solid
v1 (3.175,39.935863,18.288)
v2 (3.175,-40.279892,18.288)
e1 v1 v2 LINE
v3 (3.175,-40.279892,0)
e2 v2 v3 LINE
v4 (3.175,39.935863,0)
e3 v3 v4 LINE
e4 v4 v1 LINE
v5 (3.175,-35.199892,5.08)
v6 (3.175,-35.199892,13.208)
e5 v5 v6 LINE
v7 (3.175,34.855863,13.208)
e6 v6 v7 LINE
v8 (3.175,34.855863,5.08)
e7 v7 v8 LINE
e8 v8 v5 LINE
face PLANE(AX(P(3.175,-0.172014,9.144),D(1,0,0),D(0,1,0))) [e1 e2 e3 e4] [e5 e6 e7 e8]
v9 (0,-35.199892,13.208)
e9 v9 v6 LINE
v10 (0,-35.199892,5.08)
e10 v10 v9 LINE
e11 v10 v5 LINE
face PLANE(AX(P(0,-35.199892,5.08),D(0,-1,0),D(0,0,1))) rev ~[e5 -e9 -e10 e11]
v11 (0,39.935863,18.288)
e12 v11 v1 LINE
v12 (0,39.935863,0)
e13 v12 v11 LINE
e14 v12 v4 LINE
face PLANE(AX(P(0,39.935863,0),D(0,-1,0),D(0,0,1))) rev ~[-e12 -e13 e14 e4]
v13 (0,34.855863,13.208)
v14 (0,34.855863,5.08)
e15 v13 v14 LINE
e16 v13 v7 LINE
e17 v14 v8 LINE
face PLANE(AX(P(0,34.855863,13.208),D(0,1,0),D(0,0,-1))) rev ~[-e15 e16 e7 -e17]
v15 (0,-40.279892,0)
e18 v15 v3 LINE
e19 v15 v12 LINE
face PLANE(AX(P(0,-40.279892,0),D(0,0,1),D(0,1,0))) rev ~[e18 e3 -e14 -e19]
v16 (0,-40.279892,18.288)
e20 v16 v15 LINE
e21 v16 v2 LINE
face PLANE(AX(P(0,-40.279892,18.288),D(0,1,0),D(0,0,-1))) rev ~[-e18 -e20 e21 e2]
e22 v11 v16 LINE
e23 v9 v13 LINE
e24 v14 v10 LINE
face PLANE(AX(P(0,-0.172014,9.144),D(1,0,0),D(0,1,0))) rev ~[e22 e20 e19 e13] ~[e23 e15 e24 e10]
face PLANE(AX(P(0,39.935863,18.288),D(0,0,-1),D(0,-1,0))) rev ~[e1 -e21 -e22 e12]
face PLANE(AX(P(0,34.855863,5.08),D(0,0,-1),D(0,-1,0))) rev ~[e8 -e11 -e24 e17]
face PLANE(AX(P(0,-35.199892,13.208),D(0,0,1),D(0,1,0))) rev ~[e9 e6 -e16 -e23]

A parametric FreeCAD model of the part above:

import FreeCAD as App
import Part
import Sketcher
Q = App.Units.Quantity

doc = App.newDocument("Part")
body = doc.addObject("PartDesign::Body", "Body")

sketch1 = body.newObject("Sketcher::SketchObject", "Sketch")
sketch1.AttachmentSupport = (doc.getObject("YZ_Plane"), [""])
sketch1.MapMode = "FlatFace"
sketch1.addGeometry([
    Part.LineSegment(App.Vector(-40.279892, 18.288, 0), App.Vector(-40.279892, 0, 0)),
    Part.LineSegment(App.Vector(-40.279892, 0, 0), App.Vector(39.935863, 0, 0)),
    Part.LineSegment(App.Vector(39.935863, 0, 0), App.Vector(39.935863, 18.288, 0)),
    Part.LineSegment(App.Vector(39.935863, 18.288, 0), App.Vector(-40.279892, 18.288, 0)),
    Part.LineSegment(App.Vector(34.855863, 5.08, 0), App.Vector(-35.199892, 5.08, 0)),
    Part.LineSegment(App.Vector(-35.199892, 5.08, 0), App.Vector(-35.199892, 13.208, 0)),
    Part.LineSegment(App.Vector(-35.199892, 13.208, 0), App.Vector(34.855863, 13.208, 0)),
    Part.LineSegment(App.Vector(34.855863, 13.208, 0), App.Vector(34.855863, 5.08, 0)),
], False)
sketch1.addConstraint([
    Sketcher.Constraint("Coincident", 0, 2, 1, 1),
    Sketcher.Constraint("Coincident", 1, 2, 2, 1),
    Sketcher.Constraint("Coincident", 2, 2, 3, 1),
    Sketcher.Constraint("Coincident", 3, 2, 0, 1),
    Sketcher.Constraint("Coincident", 4, 2, 5, 1),
    Sketcher.Constraint("Coincident", 5, 2, 6, 1),
    Sketcher.Constraint("Coincident", 6, 2, 7, 1),
    Sketcher.Constraint("Coincident", 7, 2, 4, 1),
    Sketcher.Constraint("Vertical", 0),
    Sketcher.Constraint("Horizontal", 1),
    Sketcher.Constraint("Vertical", 2),
    Sketcher.Constraint("Horizontal", 3),
    Sketcher.Constraint("Horizontal", 4),
    Sketcher.Constraint("Vertical", 5),
    Sketcher.Constraint("Horizontal", 6),
    Sketcher.Constraint("Vertical", 7),
    Sketcher.Constraint("PointOnObject", 0, 2, -1),
    Sketcher.Constraint("DistanceY", 0, 2, 0, 1, Q("0.72 in")),
    Sketcher.Constraint("DistanceY", 5, 1, 5, 2, Q("0.32 in")),
    Sketcher.Constraint("DistanceY", -1, 1, 4, 2, Q("0.2 in")),
    Sketcher.Constraint("DistanceX", 0, 2, 4, 2, Q("0.2 in")),
    Sketcher.Constraint("DistanceX", 6, 2, 2, 2, Q("0.2 in")),
    Sketcher.Constraint("DistanceX", 1, 1, 1, 2, 80.215755),
    Sketcher.Constraint("DistanceX", 0, 2, -1, 1, 40.279892),
])
pad1 = body.newObject("PartDesign::Pad", "Pad")
pad1.Profile = sketch1
pad1.Length = Q("0.125 in")

doc.recompute()
